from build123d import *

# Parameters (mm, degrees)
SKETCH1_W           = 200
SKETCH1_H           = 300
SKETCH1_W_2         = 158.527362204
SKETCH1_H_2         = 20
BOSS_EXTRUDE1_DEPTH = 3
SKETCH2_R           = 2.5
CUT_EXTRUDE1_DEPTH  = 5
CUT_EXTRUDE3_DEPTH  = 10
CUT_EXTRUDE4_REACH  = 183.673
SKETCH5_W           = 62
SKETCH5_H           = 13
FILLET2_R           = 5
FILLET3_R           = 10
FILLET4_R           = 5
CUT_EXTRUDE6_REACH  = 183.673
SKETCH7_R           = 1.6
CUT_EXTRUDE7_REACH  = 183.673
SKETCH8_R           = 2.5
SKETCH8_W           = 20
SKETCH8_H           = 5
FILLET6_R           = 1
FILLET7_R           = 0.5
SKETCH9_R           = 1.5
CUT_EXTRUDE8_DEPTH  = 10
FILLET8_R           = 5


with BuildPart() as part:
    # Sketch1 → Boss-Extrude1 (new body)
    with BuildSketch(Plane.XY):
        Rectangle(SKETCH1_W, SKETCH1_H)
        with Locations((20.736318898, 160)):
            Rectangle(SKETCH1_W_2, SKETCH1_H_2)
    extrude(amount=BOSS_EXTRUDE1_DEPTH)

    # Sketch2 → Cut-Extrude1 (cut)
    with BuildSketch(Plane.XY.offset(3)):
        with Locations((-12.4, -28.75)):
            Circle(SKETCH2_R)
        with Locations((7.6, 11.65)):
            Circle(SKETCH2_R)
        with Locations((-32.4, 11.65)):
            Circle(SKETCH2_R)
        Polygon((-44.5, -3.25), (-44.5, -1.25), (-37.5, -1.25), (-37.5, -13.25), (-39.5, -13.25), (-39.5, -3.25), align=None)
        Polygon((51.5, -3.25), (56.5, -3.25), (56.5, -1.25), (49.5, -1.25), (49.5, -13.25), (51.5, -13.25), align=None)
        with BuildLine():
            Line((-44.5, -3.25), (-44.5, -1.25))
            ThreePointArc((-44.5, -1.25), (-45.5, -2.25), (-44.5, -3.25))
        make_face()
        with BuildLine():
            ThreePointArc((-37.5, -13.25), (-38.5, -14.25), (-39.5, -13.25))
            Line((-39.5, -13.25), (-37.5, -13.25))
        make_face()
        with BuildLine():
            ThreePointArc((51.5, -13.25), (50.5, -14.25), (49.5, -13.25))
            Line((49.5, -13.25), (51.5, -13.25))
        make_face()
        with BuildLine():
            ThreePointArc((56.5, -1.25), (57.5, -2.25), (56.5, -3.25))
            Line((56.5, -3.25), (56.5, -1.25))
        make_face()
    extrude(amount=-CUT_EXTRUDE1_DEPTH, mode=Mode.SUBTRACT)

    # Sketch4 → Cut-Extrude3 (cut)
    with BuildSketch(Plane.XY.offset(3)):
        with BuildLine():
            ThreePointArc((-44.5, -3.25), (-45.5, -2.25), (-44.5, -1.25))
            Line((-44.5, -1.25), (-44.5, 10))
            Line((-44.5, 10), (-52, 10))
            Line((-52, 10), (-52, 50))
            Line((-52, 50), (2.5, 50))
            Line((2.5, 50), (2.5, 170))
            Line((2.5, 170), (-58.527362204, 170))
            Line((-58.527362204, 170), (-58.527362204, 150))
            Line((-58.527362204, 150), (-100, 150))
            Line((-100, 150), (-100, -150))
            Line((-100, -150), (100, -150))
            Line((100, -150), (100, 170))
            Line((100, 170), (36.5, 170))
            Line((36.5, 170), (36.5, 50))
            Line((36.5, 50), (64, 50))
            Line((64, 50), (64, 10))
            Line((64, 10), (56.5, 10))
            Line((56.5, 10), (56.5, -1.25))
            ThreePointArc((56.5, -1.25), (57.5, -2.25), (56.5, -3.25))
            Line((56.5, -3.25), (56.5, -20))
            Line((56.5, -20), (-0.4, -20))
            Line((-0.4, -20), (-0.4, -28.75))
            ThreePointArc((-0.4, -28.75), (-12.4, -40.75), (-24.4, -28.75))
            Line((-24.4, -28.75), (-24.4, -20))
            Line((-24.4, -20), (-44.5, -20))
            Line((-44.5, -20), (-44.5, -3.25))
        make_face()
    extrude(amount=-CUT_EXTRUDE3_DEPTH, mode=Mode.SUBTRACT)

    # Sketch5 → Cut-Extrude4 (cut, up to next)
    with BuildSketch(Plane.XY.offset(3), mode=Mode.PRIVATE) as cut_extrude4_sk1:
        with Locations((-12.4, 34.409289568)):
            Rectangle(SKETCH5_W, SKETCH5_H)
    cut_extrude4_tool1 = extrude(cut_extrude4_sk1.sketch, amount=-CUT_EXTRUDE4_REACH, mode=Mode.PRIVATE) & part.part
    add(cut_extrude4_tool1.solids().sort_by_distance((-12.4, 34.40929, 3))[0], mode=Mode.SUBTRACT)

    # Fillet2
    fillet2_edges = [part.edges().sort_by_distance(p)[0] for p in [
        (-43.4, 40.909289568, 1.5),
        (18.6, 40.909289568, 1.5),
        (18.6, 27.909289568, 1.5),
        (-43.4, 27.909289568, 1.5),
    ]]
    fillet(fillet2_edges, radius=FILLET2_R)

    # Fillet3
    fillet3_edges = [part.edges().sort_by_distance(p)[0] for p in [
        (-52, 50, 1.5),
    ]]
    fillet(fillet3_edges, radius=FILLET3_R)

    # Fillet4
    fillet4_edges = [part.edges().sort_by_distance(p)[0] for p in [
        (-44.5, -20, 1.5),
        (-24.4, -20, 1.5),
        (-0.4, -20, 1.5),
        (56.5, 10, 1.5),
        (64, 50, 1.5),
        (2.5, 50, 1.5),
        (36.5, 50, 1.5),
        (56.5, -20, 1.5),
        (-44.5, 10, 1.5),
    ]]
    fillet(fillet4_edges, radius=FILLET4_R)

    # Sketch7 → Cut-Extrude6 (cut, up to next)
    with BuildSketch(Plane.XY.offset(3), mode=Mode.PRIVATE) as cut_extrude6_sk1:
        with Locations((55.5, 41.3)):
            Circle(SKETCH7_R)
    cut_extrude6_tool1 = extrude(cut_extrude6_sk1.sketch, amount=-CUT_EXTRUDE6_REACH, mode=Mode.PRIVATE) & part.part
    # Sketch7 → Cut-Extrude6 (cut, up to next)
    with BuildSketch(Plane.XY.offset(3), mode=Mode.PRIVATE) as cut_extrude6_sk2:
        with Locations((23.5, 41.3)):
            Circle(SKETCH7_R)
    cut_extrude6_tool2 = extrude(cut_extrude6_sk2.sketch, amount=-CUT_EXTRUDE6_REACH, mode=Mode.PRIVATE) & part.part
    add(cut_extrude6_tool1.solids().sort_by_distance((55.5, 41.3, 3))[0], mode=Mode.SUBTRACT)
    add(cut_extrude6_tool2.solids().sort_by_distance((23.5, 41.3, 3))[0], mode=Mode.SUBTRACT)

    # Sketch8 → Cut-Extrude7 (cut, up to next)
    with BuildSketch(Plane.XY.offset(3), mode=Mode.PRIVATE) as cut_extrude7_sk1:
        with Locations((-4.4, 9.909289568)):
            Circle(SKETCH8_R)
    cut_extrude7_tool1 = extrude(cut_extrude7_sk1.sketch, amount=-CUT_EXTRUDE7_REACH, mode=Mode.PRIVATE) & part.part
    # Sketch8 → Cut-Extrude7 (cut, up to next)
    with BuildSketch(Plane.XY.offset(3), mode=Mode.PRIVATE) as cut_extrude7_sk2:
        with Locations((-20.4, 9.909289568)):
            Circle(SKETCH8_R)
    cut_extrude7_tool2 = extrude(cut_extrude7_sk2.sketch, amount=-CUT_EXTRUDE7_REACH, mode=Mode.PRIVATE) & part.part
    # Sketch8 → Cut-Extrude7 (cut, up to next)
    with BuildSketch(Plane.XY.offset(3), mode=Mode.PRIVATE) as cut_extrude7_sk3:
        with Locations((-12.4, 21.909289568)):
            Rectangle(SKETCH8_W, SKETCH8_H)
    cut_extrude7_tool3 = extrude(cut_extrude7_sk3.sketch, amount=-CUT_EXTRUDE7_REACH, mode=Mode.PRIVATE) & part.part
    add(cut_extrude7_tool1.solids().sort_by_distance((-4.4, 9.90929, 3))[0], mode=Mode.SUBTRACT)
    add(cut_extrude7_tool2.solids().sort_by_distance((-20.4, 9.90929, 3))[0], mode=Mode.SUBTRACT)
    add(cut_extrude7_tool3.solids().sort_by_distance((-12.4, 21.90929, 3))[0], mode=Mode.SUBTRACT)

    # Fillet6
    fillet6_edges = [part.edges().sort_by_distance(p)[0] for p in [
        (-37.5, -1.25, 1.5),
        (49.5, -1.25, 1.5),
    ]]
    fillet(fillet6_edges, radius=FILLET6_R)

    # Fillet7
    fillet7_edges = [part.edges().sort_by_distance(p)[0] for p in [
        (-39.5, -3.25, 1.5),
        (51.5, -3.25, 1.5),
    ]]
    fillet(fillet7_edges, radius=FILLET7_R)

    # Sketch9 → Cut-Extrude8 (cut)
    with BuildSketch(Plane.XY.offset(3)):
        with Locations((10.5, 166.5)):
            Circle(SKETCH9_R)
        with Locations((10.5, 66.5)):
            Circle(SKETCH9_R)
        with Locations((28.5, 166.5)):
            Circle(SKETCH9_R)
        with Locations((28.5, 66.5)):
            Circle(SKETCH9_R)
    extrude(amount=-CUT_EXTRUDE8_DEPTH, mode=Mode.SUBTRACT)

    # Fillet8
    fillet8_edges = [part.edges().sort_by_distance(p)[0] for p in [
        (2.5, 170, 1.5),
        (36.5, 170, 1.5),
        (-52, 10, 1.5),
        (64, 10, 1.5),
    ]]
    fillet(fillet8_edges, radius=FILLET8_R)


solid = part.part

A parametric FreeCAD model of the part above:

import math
import FreeCAD as App
import Part
import Sketcher

V = App.Vector
Q = App.Units.Quantity


def edges_at(feature, points):
    """Names of the edges that pass closest to the given points."""
    edges = feature.Shape.Edges
    near = lambda p: min(range(len(edges)), key=lambda i: edges[i].distToShape(Part.Vertex(*p))[0])
    return sorted({f"Edge{near(p) + 1}" for p in points})


def add_polygon(sketch, points):
    """Adds a closed chain of lines whose ends are joined by coincident constraints."""
    first, n = sketch.GeometryCount, len(points)
    for a, b in zip(points, points[1:] + points[:1]):
        sketch.addGeometry(Part.LineSegment(App.Vector(*a, 0), App.Vector(*b, 0)), False)
    for i in range(n):
        sketch.addConstraint(Sketcher.Constraint("Coincident", first + i, 2, first + (i + 1) % n, 1))

doc = App.newDocument("Part")
body = doc.addObject("PartDesign::Body", "Body")

sketch1 = doc.addObject("Sketcher::SketchObject", "Sketch")
body.addObject(sketch1)
sketch1.AttachmentSupport = (doc.XY_Plane, [""])
sketch1.MapMode = "FlatFace"
add_polygon(sketch1, [(-100, 150), (-100, -150), (100, -150), (100, 170), (-59, 170), (-59, 150)])
sketch1.addConstraint([
    Sketcher.Constraint("Vertical", 0),
    Sketcher.Constraint("Horizontal", 1),
    Sketcher.Constraint("Vertical", 2),
    Sketcher.Constraint("Horizontal", 3),
    Sketcher.Constraint("Vertical", 4),
    Sketcher.Constraint("Horizontal", 5),
    Sketcher.Constraint("Symmetric", 1, 2, 5, 2, -1, 1),
    Sketcher.Constraint("DistanceX", 1, 1, 1, 2, Q("200 mm")),
    Sketcher.Constraint("DistanceY", 0, 2, 0, 1, Q("300 mm")),
    Sketcher.Constraint("DistanceY", 2, 1, 2, 2, Q("320 mm")),
    Sketcher.Constraint("DistanceX", 3, 2, 3, 1, Q("158.527362 mm")),
])
pad1 = doc.addObject("PartDesign::Pad", "Pad")
body.addObject(pad1)
pad1.Profile = sketch1
pad1.Length = 3

sketch2 = doc.addObject("Sketcher::SketchObject", "Sketch001")
body.addObject(sketch2)
sketch2.AttachmentSupport = (doc.XY_Plane, [""])
sketch2.MapMode = "FlatFace"
sketch2.AttachmentOffset = App.Placement(V(0, 0, 3), App.Rotation())
sketch2.addGeometry([
    Part.Circle(V(-12.4, -28.8, 0), V(0, 0, 1), 2.5),
    Part.Circle(V(7.6, 11.7, 0), V(0, 0, 1), 2.5),
    Part.Circle(V(-32.4, 11.7, 0), V(0, 0, 1), 2.5),
    Part.LineSegment(V(-37.5, -1.2, 0), V(-44.5, -1.2, 0)),
    Part.ArcOfCircle(Part.Circle(V(-44.5, -2.2, 0), V(0, 0, 1), 1), math.radians(90), math.radians(270)),
    Part.LineSegment(V(-44.5, -3.2, 0), V(-39.5, -3.2, 0)),
    Part.LineSegment(V(-39.5, -3.2, 0), V(-39.5, -13.2, 0)),
    Part.ArcOfCircle(Part.Circle(V(-38.5, -13.2, 0), V(0, 0, 1), 1), math.radians(180), math.radians(360)),
    Part.LineSegment(V(-37.5, -13.2, 0), V(-37.5, -1.2, 0)),
    Part.LineSegment(V(51.5, -3.2, 0), V(56.5, -3.2, 0)),
    Part.ArcOfCircle(Part.Circle(V(56.5, -2.2, 0), V(0, 0, 1), 1), math.radians(-90), math.radians(90)),
    Part.LineSegment(V(56.5, -1.2, 0), V(49.5, -1.2, 0)),
    Part.LineSegment(V(49.5, -1.2, 0), V(49.5, -13.2, 0)),
    Part.ArcOfCircle(Part.Circle(V(50.5, -13.2, 0), V(0, 0, 1), 1), math.radians(180), math.radians(360)),
    Part.LineSegment(V(51.5, -13.2, 0), V(51.5, -3.2, 0)),
], False)
sketch2.addConstraint([
    Sketcher.Constraint("Tangent", 3, 2, 4, 1),
    Sketcher.Constraint("Tangent", 4, 2, 5, 1),
    Sketcher.Constraint("Coincident", 5, 2, 6, 1),
    Sketcher.Constraint("Tangent", 6, 2, 7, 1),
    Sketcher.Constraint("Tangent", 7, 2, 8, 1),
    Sketcher.Constraint("Coincident", 8, 2, 3, 1),
    Sketcher.Constraint("Tangent", 9, 2, 10, 1),
    Sketcher.Constraint("Tangent", 10, 2, 11, 1),
    Sketcher.Constraint("Coincident", 11, 2, 12, 1),
    Sketcher.Constraint("Tangent", 12, 2, 13, 1),
    Sketcher.Constraint("Tangent", 13, 2, 14, 1),
    Sketcher.Constraint("Coincident", 14, 2, 9, 1),
    Sketcher.Constraint("Horizontal", 3),
    Sketcher.Constraint("Horizontal", 5),
    Sketcher.Constraint("Vertical", 6),
    Sketcher.Constraint("Vertical", 8),
    Sketcher.Constraint("Horizontal", 9),
    Sketcher.Constraint("Horizontal", 11),
    Sketcher.Constraint("Vertical", 12),
    Sketcher.Constraint("Vertical", 14),
    Sketcher.Constraint("Equal", 0, 1),
    Sketcher.Constraint("Equal", 1, 2),
    Sketcher.Constraint("Equal", 4, 7),
    Sketcher.Constraint("Equal", 7, 10),
    Sketcher.Constraint("Equal", 10, 13),
    Sketcher.Constraint("Horizontal", 1, 3, 2, 3),
    Sketcher.Constraint("Horizontal", 4, 3, 10, 3),
    Sketcher.Constraint("Horizontal", 7, 3, 13, 3),
    Sketcher.Constraint("Equal", 5, 9),
    Sketcher.Constraint("Diameter", 0, Q("5 mm")),
    Sketcher.Constraint("Radius", 4, Q("1 mm")),
    Sketcher.Constraint("DistanceX", 3, 2, 3, 1, Q("7 mm")),
    Sketcher.Constraint("DistanceY", 6, 2, 6, 1, Q("10 mm")),
    Sketcher.Constraint("DistanceX", 0, 3, 1, 3, Q("20 mm")),
    Sketcher.Constraint("DistanceX", 2, 3, 1, 3, Q("40 mm")),
    Sketcher.Constraint("DistanceX", 7, 3, 10, 3, Q("95 mm")),
    Sketcher.Constraint("DistanceX", 0, 3, -1, 1, Q("12.4 mm")),
    Sketcher.Constraint("DistanceX", 4, 3, -1, 1, Q("44.5 mm")),
    Sketcher.Constraint("DistanceY", 0, 3, 1, 3, Q("40.4 mm")),
    Sketcher.Constraint("DistanceY", 4, 3, 2, 3, Q("13.9 mm")),
    Sketcher.Constraint("DistanceY", 0, 3, -1, 1, Q("28.75 mm")),
])
pocket1 = doc.addObject("PartDesign::Pocket", "Pocket")
body.addObject(pocket1)
pocket1.Profile = sketch2
pocket1.Length = 5

sketch3 = doc.addObject("Sketcher::SketchObject", "Sketch002")
body.addObject(sketch3)
sketch3.AttachmentSupport = (doc.XY_Plane, [""])
sketch3.MapMode = "FlatFace"
sketch3.AttachmentOffset = App.Placement(V(0, 0, 3), App.Rotation())
sketch3.addGeometry([
    Part.ArcOfCircle(Part.Circle(V(-44.5, -2.2, 0), V(0, 0, 1), 1), math.radians(90), math.radians(270)),
    Part.LineSegment(V(-44.5, -1.2, 0), V(-44.5, 10, 0)),
    Part.LineSegment(V(-44.5, 10, 0), V(-52, 10, 0)),
    Part.LineSegment(V(-52, 10, 0), V(-52, 50, 0)),
    Part.LineSegment(V(-52, 50, 0), V(2.5, 50, 0)),
    Part.LineSegment(V(2.5, 50, 0), V(2.5, 170, 0)),
    Part.LineSegment(V(2.5, 170, 0), V(-58.5, 170, 0)),
    Part.LineSegment(V(-58.5, 170, 0), V(-58.5, 150, 0)),
    Part.LineSegment(V(-58.5, 150, 0), V(-100, 150, 0)),
    Part.LineSegment(V(-100, 150, 0), V(-100, -150, 0)),
    Part.LineSegment(V(-100, -150, 0), V(100, -150, 0)),
    Part.LineSegment(V(100, -150, 0), V(100, 170, 0)),
    Part.LineSegment(V(100, 170, 0), V(36.5, 170, 0)),
    Part.LineSegment(V(36.5, 170, 0), V(36.5, 50, 0)),
    Part.LineSegment(V(36.5, 50, 0), V(64, 50, 0)),
    Part.LineSegment(V(64, 50, 0), V(64, 10, 0)),
    Part.LineSegment(V(64, 10, 0), V(56.5, 10, 0)),
    Part.LineSegment(V(56.5, 10, 0), V(56.5, -1.2, 0)),
    Part.ArcOfCircle(Part.Circle(V(56.5, -2.2, 0), V(0, 0, 1), 1), math.radians(-90), math.radians(90)),
    Part.LineSegment(V(56.5, -3.2, 0), V(56.5, -20, 0)),
    Part.LineSegment(V(56.5, -20, 0), V(-0.4, -20, 0)),
    Part.LineSegment(V(-0.4, -20, 0), V(-0.4, -28.8, 0)),
    Part.ArcOfCircle(Part.Circle(V(-12.4, -28.8, 0), V(0, 0, 1), 12), math.radians(180), math.radians(360)),
    Part.LineSegment(V(-24.4, -28.8, 0), V(-24.4, -20, 0)),
    Part.LineSegment(V(-24.4, -20, 0), V(-44.5, -20, 0)),
    Part.LineSegment(V(-44.5, -20, 0), V(-44.5, -3.2, 0)),
], False)
sketch3.addConstraint([
    Sketcher.Constraint("Coincident", 0, 1, 1, 1),
    Sketcher.Constraint("Coincident", 1, 2, 2, 1),
    Sketcher.Constraint("Coincident", 2, 2, 3, 1),
    Sketcher.Constraint("Coincident", 3, 2, 4, 1),
    Sketcher.Constraint("Coincident", 4, 2, 5, 1),
    Sketcher.Constraint("Coincident", 5, 2, 6, 1),
    Sketcher.Constraint("Coincident", 6, 2, 7, 1),
    Sketcher.Constraint("Coincident", 7, 2, 8, 1),
    Sketcher.Constraint("Coincident", 8, 2, 9, 1),
    Sketcher.Constraint("Coincident", 9, 2, 10, 1),
    Sketcher.Constraint("Coincident", 10, 2, 11, 1),
    Sketcher.Constraint("Coincident", 11, 2, 12, 1),
    Sketcher.Constraint("Coincident", 12, 2, 13, 1),
    Sketcher.Constraint("Coincident", 13, 2, 14, 1),
    Sketcher.Constraint("Coincident", 14, 2, 15, 1),
    Sketcher.Constraint("Coincident", 15, 2, 16, 1),
    Sketcher.Constraint("Coincident", 16, 2, 17, 1),
    Sketcher.Constraint("Coincident", 17, 2, 18, 2),
    Sketcher.Constraint("Coincident", 18, 1, 19, 1),
    Sketcher.Constraint("Coincident", 19, 2, 20, 1),
    Sketcher.Constraint("Coincident", 20, 2, 21, 1),
    Sketcher.Constraint("Tangent", 21, 2, 22, 2),
    Sketcher.Constraint("Tangent", 22, 1, 23, 1),
    Sketcher.Constraint("Coincident", 23, 2, 24, 1),
    Sketcher.Constraint("Coincident", 24, 2, 25, 1),
    Sketcher.Constraint("Coincident", 25, 2, 0, 2),
    Sketcher.Constraint("Vertical", 1),
    Sketcher.Constraint("Horizontal", 2),
    Sketcher.Constraint("Vertical", 3),
    Sketcher.Constraint("Horizontal", 4),
    Sketcher.Constraint("Vertical", 5),
    Sketcher.Constraint("Horizontal", 6),
    Sketcher.Constraint("Vertical", 7),
    Sketcher.Constraint("Horizontal", 8),
    Sketcher.Constraint("Vertical", 9),
    Sketcher.Constraint("Horizontal", 10),
    Sketcher.Constraint("Vertical", 11),
    Sketcher.Constraint("Horizontal", 12),
    Sketcher.Constraint("Vertical", 13),
    Sketcher.Constraint("Horizontal", 14),
    Sketcher.Constraint("Vertical", 15),
    Sketcher.Constraint("Horizontal", 16),
    Sketcher.Constraint("Vertical", 17),
    Sketcher.Constraint("Vertical", 19),
    Sketcher.Constraint("Horizontal", 20),
    Sketcher.Constraint("Vertical", 21),
    Sketcher.Constraint("Vertical", 23),
    Sketcher.Constraint("Horizontal", 24),
    Sketcher.Constraint("Vertical", 25),
    Sketcher.Constraint("Equal", 0, 18),
    Sketcher.Constraint("Symmetric", 8, 2, 10, 2, -1, 1),
    Sketcher.Constraint("Horizontal", 0, 3, 18, 3),
    Sketcher.Constraint("Horizontal", 6, 2, 11, 2),
    Sketcher.Constraint("Horizontal", 4, 2, 13, 2),
    Sketcher.Constraint("Horizontal", 2, 2, 15, 2),
    Sketcher.Constraint("Horizontal", 20, 2, 23, 2),
    Sketcher.Constraint("Vertical", 18, 3, 16, 2),
    Sketcher.Constraint("Vertical", 17, 2, 18, 1),
    Sketcher.Constraint("Vertical", 1, 2, 24, 2),
    Sketcher.Constraint("Equal", 2, 16),
    Sketcher.Constraint("Radius", 0, Q("1 mm")),
    Sketcher.Constraint("Radius", 22, Q("12 mm")),
    Sketcher.Constraint("DistanceX", 10, 1, 10, 2, Q("200 mm")),
    Sketcher.Constraint("DistanceY", 3, 1, 3, 2, Q("40 mm")),
    Sketcher.Constraint("DistanceY", 5, 1, 5, 2, Q("120 mm")),
    Sketcher.Constraint("DistanceY", 7, 2, 7, 1, Q("20 mm")),
    Sketcher.Constraint("DistanceY", 9, 2, 9, 1, Q("300 mm")),
    Sketcher.Constraint("DistanceX", 2, 2, 2, 1, Q("7.5 mm")),
    Sketcher.Constraint("DistanceX", 4, 1, 4, 2, Q("54.5 mm")),
    Sketcher.Constraint("DistanceX", 12, 2, 12, 1, Q("63.5 mm")),
    Sketcher.Constraint("DistanceX", 14, 1, 14, 2, Q("27.5 mm")),
    Sketcher.Constraint("DistanceX", 20, 2, 20, 1, Q("56.9 mm")),
    Sketcher.Constraint("DistanceX", 24, 2, 24, 1, Q("20.1 mm")),
    Sketcher.Constraint("DistanceY", 19, 2, -1, 1, Q("20 mm")),
    Sketcher.Constraint("DistanceX", 0, 3, 18, 3, Q("101 mm")),
    Sketcher.Constraint("DistanceY", 1, 1, 1, 2, Q("11.25 mm")),
    Sketcher.Constraint("DistanceY", 21, 2, 21, 1, Q("8.75 mm")),
    Sketcher.Constraint("DistanceX", 6, 2, 6, 1, Q("61.027362 mm")),
])
pocket2 = doc.addObject("PartDesign::Pocket", "Pocket001")
body.addObject(pocket2)
pocket2.Profile = sketch3
pocket2.Length = 10

sketch4 = doc.addObject("Sketcher::SketchObject", "Sketch003")
body.addObject(sketch4)
sketch4.AttachmentSupport = (doc.XY_Plane, [""])
sketch4.MapMode = "FlatFace"
sketch4.AttachmentOffset = App.Placement(V(0, 0, 3), App.Rotation())
add_polygon(sketch4, [(-43, 41), (-43, 28), (19, 28), (19, 41)])
sketch4.addConstraint([
    Sketcher.Constraint("Vertical", 0),
    Sketcher.Constraint("Horizontal", 1),
    Sketcher.Constraint("Vertical", 2),
    Sketcher.Constraint("Horizontal", 3),
    Sketcher.Constraint("DistanceX", 1, 1, 1, 2, Q("62 mm")),
    Sketcher.Constraint("DistanceY", 0, 2, 0, 1, Q("13 mm")),
    Sketcher.Constraint("DistanceX", 0, 2, -1, 1, Q("43.4 mm")),
    Sketcher.Constraint("DistanceY", -1, 1, 0, 2, Q("27.90929 mm")),
])
pocket3 = doc.addObject("PartDesign::Pocket", "Pocket002")
body.addObject(pocket3)
pocket3.Profile = sketch4
pocket3.Type = "UpToFirst"
doc.recompute()

fillet = doc.addObject("PartDesign::Fillet", "Fillet")
body.addObject(fillet)
fillet.Base = (pocket3, edges_at(pocket3, [
    (-43.4, 40.909, 1.5),
    (18.6, 40.909, 1.5),
    (18.6, 27.909, 1.5),
    (-43.4, 27.909, 1.5),
]))
fillet.Radius = 5
doc.recompute()

fillet2 = doc.addObject("PartDesign::Fillet", "Fillet001")
body.addObject(fillet2)
fillet2.Base = (fillet, edges_at(fillet, [(-52, 50, 1.5)]))
fillet2.Radius = 10
doc.recompute()

fillet3 = doc.addObject("PartDesign::Fillet", "Fillet002")
body.addObject(fillet3)
fillet3.Base = (fillet2, edges_at(fillet2, [
    (-44.5, -20, 1.5),
    (-24.4, -20, 1.5),
    (-0.4, -20, 1.5),
    (56.5, 10, 1.5),
    (64, 50, 1.5),
    (2.5, 50, 1.5),
    (36.5, 50, 1.5),
    (56.5, -20, 1.5),
    (-44.5, 10, 1.5),
]))
fillet3.Radius = 5

sketch5 = doc.addObject("Sketcher::SketchObject", "Sketch004")
body.addObject(sketch5)
sketch5.AttachmentSupport = (doc.XY_Plane, [""])
sketch5.MapMode = "FlatFace"
sketch5.AttachmentOffset = App.Placement(V(0, 0, 3), App.Rotation())
sketch5.addGeometry(Part.Circle(V(55.5, 41.3, 0), V(0, 0, 1), 1.6), False)
sketch5.addConstraint([
    Sketcher.Constraint("Diameter", 0, Q("3.2 mm")),
    Sketcher.Constraint("DistanceX", -1, 1, 0, 3, Q("55.5 mm")),
    Sketcher.Constraint("DistanceY", -1, 1, 0, 3, Q("41.3 mm")),
])
pocket4 = doc.addObject("PartDesign::Pocket", "Pocket003")
body.addObject(pocket4)
pocket4.Profile = sketch5
pocket4.Type = "UpToFirst"

sketch6 = doc.addObject("Sketcher::SketchObject", "Sketch005")
body.addObject(sketch6)
sketch6.AttachmentSupport = (doc.XY_Plane, [""])
sketch6.MapMode = "FlatFace"
sketch6.AttachmentOffset = App.Placement(V(0, 0, 3), App.Rotation())
sketch6.addGeometry(Part.Circle(V(23.5, 41.3, 0), V(0, 0, 1), 1.6), False)
sketch6.addConstraint([
    Sketcher.Constraint("Diameter", 0, Q("3.2 mm")),
    Sketcher.Constraint("DistanceX", -1, 1, 0, 3, Q("23.5 mm")),
    Sketcher.Constraint("DistanceY", -1, 1, 0, 3, Q("41.3 mm")),
])
pocket5 = doc.addObject("PartDesign::Pocket", "Pocket004")
body.addObject(pocket5)
pocket5.Profile = sketch6
pocket5.Type = "UpToFirst"

sketch7 = doc.addObject("Sketcher::SketchObject", "Sketch006")
body.addObject(sketch7)
sketch7.AttachmentSupport = (doc.XY_Plane, [""])
sketch7.MapMode = "FlatFace"
sketch7.AttachmentOffset = App.Placement(V(0, 0, 3), App.Rotation())
sketch7.addGeometry(Part.Circle(V(-4.4, 9.9, 0), V(0, 0, 1), 2.5), False)
sketch7.addConstraint([
    Sketcher.Constraint("Diameter", 0, Q("5 mm")),
    Sketcher.Constraint("DistanceX", 0, 3, -1, 1, Q("4.4 mm")),
    Sketcher.Constraint("DistanceY", -1, 1, 0, 3, Q("9.90929 mm")),
])
pocket6 = doc.addObject("PartDesign::Pocket", "Pocket005")
body.addObject(pocket6)
pocket6.Profile = sketch7
pocket6.Type = "UpToFirst"

sketch8 = doc.addObject("Sketcher::SketchObject", "Sketch007")
body.addObject(sketch8)
sketch8.AttachmentSupport = (doc.XY_Plane, [""])
sketch8.MapMode = "FlatFace"
sketch8.AttachmentOffset = App.Placement(V(0, 0, 3), App.Rotation())
sketch8.addGeometry(Part.Circle(V(-20.4, 9.9, 0), V(0, 0, 1), 2.5), False)
sketch8.addConstraint([
    Sketcher.Constraint("Diameter", 0, Q("5 mm")),
    Sketcher.Constraint("DistanceX", 0, 3, -1, 1, Q("20.4 mm")),
    Sketcher.Constraint("DistanceY", -1, 1, 0, 3, Q("9.90929 mm")),
])
pocket7 = doc.addObject("PartDesign::Pocket", "Pocket006")
body.addObject(pocket7)
pocket7.Profile = sketch8
pocket7.Type = "UpToFirst"

sketch9 = doc.addObject("Sketcher::SketchObject", "Sketch008")
body.addObject(sketch9)
sketch9.AttachmentSupport = (doc.XY_Plane, [""])
sketch9.MapMode = "FlatFace"
sketch9.AttachmentOffset = App.Placement(V(0, 0, 3), App.Rotation())
add_polygon(sketch9, [(-22, 24), (-22, 19), (-2, 19), (-2, 24)])
sketch9.addConstraint([
    Sketcher.Constraint("Vertical", 0),
    Sketcher.Constraint("Horizontal", 1),
    Sketcher.Constraint("Vertical", 2),
    Sketcher.Constraint("Horizontal", 3),
    Sketcher.Constraint("DistanceX", 1, 1, 1, 2, Q("20 mm")),
    Sketcher.Constraint("DistanceY", 0, 2, 0, 1, Q("5 mm")),
    Sketcher.Constraint("DistanceX", 0, 2, -1, 1, Q("22.4 mm")),
    Sketcher.Constraint("DistanceY", -1, 1, 0, 2, Q("19.40929 mm")),
])
pocket8 = doc.addObject("PartDesign::Pocket", "Pocket007")
body.addObject(pocket8)
pocket8.Profile = sketch9
pocket8.Type = "UpToFirst"
doc.recompute()

fillet4 = doc.addObject("PartDesign::Fillet", "Fillet003")
body.addObject(fillet4)
fillet4.Base = (pocket8, edges_at(pocket8, [(-37.5, -1.25, 1.5), (49.5, -1.25, 1.5)]))
fillet4.Radius = 1
doc.recompute()

fillet5 = doc.addObject("PartDesign::Fillet", "Fillet004")
body.addObject(fillet5)
fillet5.Base = (fillet4, edges_at(fillet4, [(-39.5, -3.25, 1.5), (51.5, -3.25, 1.5)]))
fillet5.Radius = 0.5

sketch10 = doc.addObject("Sketcher::SketchObject", "Sketch009")
body.addObject(sketch10)
sketch10.AttachmentSupport = (doc.XY_Plane, [""])
sketch10.MapMode = "FlatFace"
sketch10.AttachmentOffset = App.Placement(V(0, 0, 3), App.Rotation())
sketch10.addGeometry([
    Part.Circle(V(10.5, 166.5, 0), V(0, 0, 1), 1.5),
    Part.Circle(V(10.5, 66.5, 0), V(0, 0, 1), 1.5),
    Part.Circle(V(28.5, 166.5, 0), V(0, 0, 1), 1.5),
    Part.Circle(V(28.5, 66.5, 0), V(0, 0, 1), 1.5),
], False)
sketch10.addConstraint([
    Sketcher.Constraint("Equal", 0, 1),
    Sketcher.Constraint("Equal", 1, 2),
    Sketcher.Constraint("Equal", 2, 3),
    Sketcher.Constraint("Horizontal", 0, 3, 2, 3),
    Sketcher.Constraint("Horizontal", 1, 3, 3, 3),
    Sketcher.Constraint("Vertical", 0, 3, 1, 3),
    Sketcher.Constraint("Vertical", 2, 3, 3, 3),
    Sketcher.Constraint("Diameter", 0, Q("3 mm")),
    Sketcher.Constraint("DistanceY", 1, 3, 0, 3, Q("100 mm")),
    Sketcher.Constraint("DistanceX", 0, 3, 2, 3, Q("18 mm")),
    Sketcher.Constraint("DistanceX", -1, 1, 0, 3, Q("10.5 mm")),
    Sketcher.Constraint("DistanceY", -1, 1, 0, 3, Q("166.5 mm")),
])
pocket9 = doc.addObject("PartDesign::Pocket", "Pocket008")
body.addObject(pocket9)
pocket9.Profile = sketch10
pocket9.Length = 10
doc.recompute()

fillet6 = doc.addObject("PartDesign::Fillet", "Fillet005")
body.addObject(fillet6)
fillet6.Base = (pocket9, edges_at(pocket9, [
    (2.5, 170, 1.5),
    (36.5, 170, 1.5),
    (-52, 10, 1.5),
    (64, 10, 1.5),
]))
fillet6.Radius = 5

doc.recompute()
